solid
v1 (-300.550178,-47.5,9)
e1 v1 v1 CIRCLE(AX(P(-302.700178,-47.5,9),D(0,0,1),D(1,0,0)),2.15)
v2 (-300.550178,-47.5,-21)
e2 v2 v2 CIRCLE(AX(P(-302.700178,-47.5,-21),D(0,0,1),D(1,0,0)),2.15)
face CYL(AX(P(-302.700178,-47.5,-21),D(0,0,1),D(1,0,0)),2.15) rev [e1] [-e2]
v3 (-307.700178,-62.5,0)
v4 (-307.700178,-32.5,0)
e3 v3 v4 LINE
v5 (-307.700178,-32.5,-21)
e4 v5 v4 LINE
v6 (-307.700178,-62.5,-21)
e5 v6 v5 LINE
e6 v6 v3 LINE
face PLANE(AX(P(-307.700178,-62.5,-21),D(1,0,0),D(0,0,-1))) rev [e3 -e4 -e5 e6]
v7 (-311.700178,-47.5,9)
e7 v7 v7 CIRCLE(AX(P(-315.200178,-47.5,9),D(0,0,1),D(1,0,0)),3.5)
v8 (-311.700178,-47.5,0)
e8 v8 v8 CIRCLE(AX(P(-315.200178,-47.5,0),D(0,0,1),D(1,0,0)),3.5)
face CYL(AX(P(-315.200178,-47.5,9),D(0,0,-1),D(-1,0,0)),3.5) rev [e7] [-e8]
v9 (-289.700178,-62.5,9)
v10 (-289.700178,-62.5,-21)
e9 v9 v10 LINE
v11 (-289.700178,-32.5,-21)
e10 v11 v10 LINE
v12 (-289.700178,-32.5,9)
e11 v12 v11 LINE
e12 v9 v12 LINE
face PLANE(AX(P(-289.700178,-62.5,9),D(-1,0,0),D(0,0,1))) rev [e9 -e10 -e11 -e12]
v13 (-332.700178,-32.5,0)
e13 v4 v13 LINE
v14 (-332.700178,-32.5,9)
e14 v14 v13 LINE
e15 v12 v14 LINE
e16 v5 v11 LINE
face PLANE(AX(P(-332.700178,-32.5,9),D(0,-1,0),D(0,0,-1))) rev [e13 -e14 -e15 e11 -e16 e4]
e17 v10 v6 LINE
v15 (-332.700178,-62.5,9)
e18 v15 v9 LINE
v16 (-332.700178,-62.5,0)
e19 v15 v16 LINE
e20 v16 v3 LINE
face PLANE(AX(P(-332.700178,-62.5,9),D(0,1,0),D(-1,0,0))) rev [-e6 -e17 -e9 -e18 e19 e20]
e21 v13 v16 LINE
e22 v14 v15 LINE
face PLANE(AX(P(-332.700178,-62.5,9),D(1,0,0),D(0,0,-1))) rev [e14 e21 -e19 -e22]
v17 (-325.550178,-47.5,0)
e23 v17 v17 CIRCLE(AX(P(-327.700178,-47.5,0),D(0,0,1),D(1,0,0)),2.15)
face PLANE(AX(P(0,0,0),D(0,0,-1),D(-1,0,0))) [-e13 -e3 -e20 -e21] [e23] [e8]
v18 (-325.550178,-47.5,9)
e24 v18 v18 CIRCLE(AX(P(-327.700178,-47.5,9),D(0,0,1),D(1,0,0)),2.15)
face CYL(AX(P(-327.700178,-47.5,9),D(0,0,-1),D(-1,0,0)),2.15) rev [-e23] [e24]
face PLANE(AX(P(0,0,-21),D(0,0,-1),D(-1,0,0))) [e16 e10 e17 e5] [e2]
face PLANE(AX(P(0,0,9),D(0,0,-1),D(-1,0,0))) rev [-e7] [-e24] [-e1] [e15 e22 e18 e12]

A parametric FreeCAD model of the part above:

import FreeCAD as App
import Part
import Sketcher
from FreeCAD import Vector
Q = App.Units.Quantity

doc = App.newDocument("Part")
body = doc.addObject("PartDesign::Body", "Body")

sketch1 = doc.addObject("Sketcher::SketchObject", "Sketch")
body.addObject(sketch1)
sketch1.AttachmentSupport = (doc.XY_Plane, [""])
sketch1.MapMode = "FlatFace"
sketch1.addGeometry([
    Part.LineSegment(Vector(-332.7, -32.5, 0), Vector(-332.7, -62.5, 0)),
    Part.LineSegment(Vector(-332.7, -62.5, 0), Vector(-289.7, -62.5, 0)),
    Part.LineSegment(Vector(-289.7, -62.5, 0), Vector(-289.7, -32.5, 0)),
    Part.LineSegment(Vector(-289.7, -32.5, 0), Vector(-332.7, -32.5, 0)),
    Part.Circle(Vector(-327.7, -47.5, 0), Vector(0, 0, 1), 2.1),
    Part.Circle(Vector(-315.2, -47.5, 0), Vector(0, 0, 1), 3.5),
], False)
sketch1.addConstraint([
    Sketcher.Constraint("Coincident", 0, 2, 1, 1),
    Sketcher.Constraint("Coincident", 1, 2, 2, 1),
    Sketcher.Constraint("Coincident", 2, 2, 3, 1),
    Sketcher.Constraint("Coincident", 3, 2, 0, 1),
    Sketcher.Constraint("Vertical", 0),
    Sketcher.Constraint("Horizontal", 1),
    Sketcher.Constraint("Vertical", 2),
    Sketcher.Constraint("Horizontal", 3),
    Sketcher.Constraint("Horizontal", 4, 3, 5, 3),
    Sketcher.Constraint("Diameter", 5, Q("7 mm")),
    Sketcher.Constraint("Diameter", 4, Q("4.3 mm")),
    Sketcher.Constraint("DistanceX", 1, 1, 1, 2, Q("43 mm")),
    Sketcher.Constraint("DistanceY", 0, 2, 0, 1, Q("30 mm")),
    Sketcher.Constraint("DistanceX", 0, 2, 4, 3, Q("5 mm")),
    Sketcher.Constraint("DistanceY", 0, 2, 4, 3, Q("15 mm")),
    Sketcher.Constraint("DistanceY", 4, 3, -1, 1, Q("47.5 mm")),
    Sketcher.Constraint("DistanceX", 4, 3, 5, 3, Q("12.5 mm")),
    Sketcher.Constraint("DistanceX", 4, 3, -1, 1, Q("327.700178 mm")),
])
pad1 = doc.addObject("PartDesign::Pad", "Pad")
body.addObject(pad1)
pad1.Profile = sketch1
pad1.Length = 9

sketch2 = doc.addObject("Sketcher::SketchObject", "Sketch001")
body.addObject(sketch2)
sketch2.AttachmentSupport = (doc.XY_Plane, [""])
sketch2.MapMode = "FlatFace"
sketch2.addGeometry([
    Part.LineSegment(Vector(-290, -32, 0), Vector(-290, -62, 0)),
    Part.LineSegment(Vector(-290, -62, 0), Vector(-308, -62, 0)),
    Part.LineSegment(Vector(-308, -62, 0), Vector(-308, -32, 0)),
    Part.LineSegment(Vector(-308, -32, 0), Vector(-290, -32, 0)),
], False)
sketch2.addConstraint([
    Sketcher.Constraint("Coincident", 0, 2, 1, 1),
    Sketcher.Constraint("Coincident", 1, 2, 2, 1),
    Sketcher.Constraint("Coincident", 2, 2, 3, 1),
    Sketcher.Constraint("Coincident", 3, 2, 0, 1),
    Sketcher.Constraint("Vertical", 0),
    Sketcher.Constraint("Horizontal", 1),
    Sketcher.Constraint("Vertical", 2),
    Sketcher.Constraint("Horizontal", 3),
    Sketcher.Constraint("DistanceX", 1, 2, 1, 1, Q("18 mm")),
    Sketcher.Constraint("DistanceY", 0, 2, 0, 1, Q("30 mm")),
    Sketcher.Constraint("DistanceY", 0, 2, -1, 1, Q("62.5 mm")),
    Sketcher.Constraint("DistanceX", 0, 2, -1, 1, Q("289.700178 mm")),
])
pad2 = doc.addObject("PartDesign::Pad", "Pad001")
body.addObject(pad2)
pad2.Profile = sketch2
pad2.Length = 21
pad2.Reversed = True

sketch3 = doc.addObject("Sketcher::SketchObject", "Sketch002")
body.addObject(sketch3)
sketch3.AttachmentSupport = (doc.XY_Plane, [""])
sketch3.MapMode = "FlatFace"
sketch3.AttachmentOffset = App.Placement(Vector(0, 0, 9), App.Rotation())
sketch3.addGeometry(Part.Circle(Vector(-302.7, -47.5, 0), Vector(0, 0, 1), 2.1), False)
sketch3.addConstraint([
    Sketcher.Constraint("Diameter", 0, Q("4.3 mm")),
    Sketcher.Constraint("DistanceY", 0, 3, -1, 1, Q("47.5 mm")),
    Sketcher.Constraint("DistanceX", 0, 3, -1, 1, Q("302.700178 mm")),
])
pocket1 = doc.addObject("PartDesign::Pocket", "Pocket")
body.addObject(pocket1)
pocket1.Profile = sketch3
pocket1.Type = "ThroughAll"

doc.recompute()
